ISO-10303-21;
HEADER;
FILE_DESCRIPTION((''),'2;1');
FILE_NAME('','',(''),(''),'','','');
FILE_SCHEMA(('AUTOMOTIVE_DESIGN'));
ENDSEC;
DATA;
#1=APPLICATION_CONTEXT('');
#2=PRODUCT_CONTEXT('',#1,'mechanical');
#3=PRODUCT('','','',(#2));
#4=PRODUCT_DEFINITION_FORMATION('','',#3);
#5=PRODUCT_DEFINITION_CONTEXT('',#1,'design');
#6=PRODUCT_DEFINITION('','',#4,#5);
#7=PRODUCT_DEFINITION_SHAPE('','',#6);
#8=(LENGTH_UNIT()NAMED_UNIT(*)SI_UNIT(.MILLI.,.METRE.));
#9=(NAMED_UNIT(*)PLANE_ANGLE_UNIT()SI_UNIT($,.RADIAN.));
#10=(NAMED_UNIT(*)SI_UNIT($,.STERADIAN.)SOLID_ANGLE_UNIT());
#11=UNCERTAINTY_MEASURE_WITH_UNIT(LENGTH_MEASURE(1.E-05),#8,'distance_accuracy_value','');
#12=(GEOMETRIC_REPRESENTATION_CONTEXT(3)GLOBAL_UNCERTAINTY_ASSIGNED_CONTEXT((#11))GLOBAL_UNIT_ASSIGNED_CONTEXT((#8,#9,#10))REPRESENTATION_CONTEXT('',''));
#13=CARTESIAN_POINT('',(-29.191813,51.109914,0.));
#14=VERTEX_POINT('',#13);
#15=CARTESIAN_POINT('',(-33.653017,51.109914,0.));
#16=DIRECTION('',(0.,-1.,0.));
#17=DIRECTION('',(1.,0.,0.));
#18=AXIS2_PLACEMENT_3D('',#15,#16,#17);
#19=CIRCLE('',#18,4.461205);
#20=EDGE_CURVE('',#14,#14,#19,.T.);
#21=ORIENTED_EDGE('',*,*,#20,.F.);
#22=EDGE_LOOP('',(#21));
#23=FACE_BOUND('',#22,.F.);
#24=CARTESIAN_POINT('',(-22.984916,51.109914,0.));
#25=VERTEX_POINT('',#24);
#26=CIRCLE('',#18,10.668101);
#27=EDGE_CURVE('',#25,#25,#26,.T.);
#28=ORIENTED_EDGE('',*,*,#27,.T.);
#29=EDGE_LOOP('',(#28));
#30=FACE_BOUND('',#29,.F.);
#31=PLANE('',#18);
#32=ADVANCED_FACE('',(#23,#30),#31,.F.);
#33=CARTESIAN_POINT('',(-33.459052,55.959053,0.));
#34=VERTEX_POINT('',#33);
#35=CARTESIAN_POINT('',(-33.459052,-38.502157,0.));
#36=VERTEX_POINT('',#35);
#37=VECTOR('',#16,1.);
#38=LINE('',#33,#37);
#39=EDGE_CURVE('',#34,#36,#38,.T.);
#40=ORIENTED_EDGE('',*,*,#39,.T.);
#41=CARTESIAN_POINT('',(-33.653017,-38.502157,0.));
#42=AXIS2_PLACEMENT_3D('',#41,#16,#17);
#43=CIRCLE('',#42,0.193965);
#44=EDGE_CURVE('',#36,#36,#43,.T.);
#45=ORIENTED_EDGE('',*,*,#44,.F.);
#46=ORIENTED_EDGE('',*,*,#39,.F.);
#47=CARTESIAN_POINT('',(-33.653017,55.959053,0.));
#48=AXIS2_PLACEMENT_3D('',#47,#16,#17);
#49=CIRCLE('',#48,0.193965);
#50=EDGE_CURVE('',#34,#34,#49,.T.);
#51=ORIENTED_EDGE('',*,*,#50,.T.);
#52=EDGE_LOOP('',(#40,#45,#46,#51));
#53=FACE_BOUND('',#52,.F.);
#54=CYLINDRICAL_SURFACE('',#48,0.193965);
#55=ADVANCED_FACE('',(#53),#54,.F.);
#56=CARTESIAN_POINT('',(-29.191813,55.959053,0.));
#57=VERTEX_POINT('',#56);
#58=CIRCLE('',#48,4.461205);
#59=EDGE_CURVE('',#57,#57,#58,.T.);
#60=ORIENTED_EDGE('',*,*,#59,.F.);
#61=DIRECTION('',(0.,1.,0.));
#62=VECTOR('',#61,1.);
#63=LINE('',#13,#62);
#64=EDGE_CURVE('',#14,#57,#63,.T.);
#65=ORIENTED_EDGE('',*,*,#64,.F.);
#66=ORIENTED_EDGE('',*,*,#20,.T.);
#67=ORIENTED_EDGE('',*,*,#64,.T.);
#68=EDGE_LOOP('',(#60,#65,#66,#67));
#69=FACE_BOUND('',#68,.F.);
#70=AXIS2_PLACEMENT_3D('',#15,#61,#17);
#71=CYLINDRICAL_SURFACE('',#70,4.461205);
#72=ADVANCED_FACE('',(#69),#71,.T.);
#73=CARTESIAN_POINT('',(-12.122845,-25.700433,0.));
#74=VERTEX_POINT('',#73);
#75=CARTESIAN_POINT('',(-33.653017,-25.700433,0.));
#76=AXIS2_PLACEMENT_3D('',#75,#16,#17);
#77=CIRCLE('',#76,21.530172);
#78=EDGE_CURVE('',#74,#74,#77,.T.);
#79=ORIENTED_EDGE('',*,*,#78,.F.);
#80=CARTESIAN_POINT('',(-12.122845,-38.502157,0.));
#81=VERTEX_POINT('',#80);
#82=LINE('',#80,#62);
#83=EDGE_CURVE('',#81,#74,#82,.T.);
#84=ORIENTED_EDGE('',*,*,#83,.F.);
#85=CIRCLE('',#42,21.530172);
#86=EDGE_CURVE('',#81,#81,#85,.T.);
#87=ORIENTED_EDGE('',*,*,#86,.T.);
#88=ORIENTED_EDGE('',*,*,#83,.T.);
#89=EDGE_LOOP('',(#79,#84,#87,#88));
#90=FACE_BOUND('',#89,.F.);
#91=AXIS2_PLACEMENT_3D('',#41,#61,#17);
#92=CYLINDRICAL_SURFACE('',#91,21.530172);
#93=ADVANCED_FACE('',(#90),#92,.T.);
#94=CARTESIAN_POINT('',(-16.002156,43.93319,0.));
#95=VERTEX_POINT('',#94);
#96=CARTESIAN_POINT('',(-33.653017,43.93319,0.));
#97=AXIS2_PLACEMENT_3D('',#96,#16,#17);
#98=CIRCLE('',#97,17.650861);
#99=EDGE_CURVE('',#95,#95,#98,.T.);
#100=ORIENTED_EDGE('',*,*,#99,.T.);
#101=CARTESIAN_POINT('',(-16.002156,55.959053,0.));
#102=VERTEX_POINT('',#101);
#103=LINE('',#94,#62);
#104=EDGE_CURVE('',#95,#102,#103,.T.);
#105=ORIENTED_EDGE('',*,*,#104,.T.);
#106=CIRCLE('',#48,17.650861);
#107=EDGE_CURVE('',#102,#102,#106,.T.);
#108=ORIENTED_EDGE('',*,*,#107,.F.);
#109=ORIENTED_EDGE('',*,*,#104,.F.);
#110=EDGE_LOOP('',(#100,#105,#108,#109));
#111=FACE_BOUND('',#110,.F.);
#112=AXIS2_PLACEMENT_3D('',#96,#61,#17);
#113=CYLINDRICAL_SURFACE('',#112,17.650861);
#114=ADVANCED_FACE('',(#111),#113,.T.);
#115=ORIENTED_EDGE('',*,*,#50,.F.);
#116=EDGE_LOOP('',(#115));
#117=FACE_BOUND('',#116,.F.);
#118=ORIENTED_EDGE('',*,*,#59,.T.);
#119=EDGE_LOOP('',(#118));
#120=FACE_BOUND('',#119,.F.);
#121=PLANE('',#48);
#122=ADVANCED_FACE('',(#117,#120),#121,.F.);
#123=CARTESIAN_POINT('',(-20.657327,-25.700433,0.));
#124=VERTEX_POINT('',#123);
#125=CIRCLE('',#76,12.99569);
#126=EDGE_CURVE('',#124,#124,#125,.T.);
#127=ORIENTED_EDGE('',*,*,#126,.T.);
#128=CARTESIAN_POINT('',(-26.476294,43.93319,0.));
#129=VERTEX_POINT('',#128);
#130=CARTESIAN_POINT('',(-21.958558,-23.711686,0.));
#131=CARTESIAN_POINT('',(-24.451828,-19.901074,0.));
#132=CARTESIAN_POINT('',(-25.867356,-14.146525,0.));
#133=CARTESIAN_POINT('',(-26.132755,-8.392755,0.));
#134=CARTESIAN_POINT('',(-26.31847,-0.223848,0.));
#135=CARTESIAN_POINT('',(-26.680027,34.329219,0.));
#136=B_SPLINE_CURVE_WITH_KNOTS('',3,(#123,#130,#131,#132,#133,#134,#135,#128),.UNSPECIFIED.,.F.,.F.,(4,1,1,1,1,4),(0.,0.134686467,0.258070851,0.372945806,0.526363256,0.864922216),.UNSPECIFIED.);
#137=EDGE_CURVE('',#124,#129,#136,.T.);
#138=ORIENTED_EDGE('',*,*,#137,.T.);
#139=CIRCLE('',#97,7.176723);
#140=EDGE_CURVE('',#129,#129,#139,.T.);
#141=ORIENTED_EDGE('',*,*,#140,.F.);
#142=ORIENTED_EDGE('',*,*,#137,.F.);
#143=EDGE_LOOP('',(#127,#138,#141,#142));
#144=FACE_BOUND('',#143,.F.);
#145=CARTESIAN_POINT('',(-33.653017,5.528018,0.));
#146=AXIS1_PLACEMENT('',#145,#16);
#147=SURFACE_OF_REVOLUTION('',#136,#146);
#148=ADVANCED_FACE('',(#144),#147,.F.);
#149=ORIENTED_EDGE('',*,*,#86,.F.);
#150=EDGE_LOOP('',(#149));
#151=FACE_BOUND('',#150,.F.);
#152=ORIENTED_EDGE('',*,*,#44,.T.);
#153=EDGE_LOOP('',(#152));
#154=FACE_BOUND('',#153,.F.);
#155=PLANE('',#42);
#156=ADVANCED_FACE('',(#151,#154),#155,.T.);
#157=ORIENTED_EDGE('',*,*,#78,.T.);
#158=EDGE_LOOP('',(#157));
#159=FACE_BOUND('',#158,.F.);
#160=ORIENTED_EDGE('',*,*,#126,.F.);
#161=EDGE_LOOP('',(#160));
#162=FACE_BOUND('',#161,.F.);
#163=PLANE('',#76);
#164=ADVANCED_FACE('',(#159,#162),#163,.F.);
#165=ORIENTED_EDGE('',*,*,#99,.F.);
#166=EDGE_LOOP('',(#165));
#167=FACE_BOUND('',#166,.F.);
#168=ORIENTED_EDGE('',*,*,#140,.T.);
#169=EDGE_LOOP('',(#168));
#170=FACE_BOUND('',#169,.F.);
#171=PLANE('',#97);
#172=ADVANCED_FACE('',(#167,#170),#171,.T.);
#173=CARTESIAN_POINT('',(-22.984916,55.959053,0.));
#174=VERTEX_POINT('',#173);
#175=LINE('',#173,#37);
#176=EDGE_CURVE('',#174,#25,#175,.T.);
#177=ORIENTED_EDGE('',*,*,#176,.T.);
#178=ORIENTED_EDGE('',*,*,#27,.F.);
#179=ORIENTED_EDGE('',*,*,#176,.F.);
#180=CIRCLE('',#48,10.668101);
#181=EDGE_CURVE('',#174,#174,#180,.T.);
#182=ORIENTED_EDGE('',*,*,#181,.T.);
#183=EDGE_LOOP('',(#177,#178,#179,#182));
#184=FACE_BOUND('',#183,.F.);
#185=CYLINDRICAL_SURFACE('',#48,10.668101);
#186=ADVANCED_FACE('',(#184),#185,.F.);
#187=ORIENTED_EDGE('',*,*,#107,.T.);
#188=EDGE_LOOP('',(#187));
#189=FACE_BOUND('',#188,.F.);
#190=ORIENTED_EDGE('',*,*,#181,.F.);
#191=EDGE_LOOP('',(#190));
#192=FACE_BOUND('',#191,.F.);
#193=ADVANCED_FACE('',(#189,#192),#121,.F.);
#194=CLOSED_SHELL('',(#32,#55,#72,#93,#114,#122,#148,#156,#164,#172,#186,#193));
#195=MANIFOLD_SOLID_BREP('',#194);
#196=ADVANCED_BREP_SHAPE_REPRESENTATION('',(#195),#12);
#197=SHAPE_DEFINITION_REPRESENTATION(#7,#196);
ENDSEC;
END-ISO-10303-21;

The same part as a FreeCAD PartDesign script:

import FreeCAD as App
import Part
import Sketcher

doc = App.newDocument("Part")
body = doc.addObject("PartDesign::Body", "Body")

sketch1 = body.newObject("Sketcher::SketchObject", "Sketch")
sketch1.AttachmentSupport = (doc.getObject("XY_Plane"), [""])
sketch1.MapMode = "FlatFace"
sketch1.addGeometry([
    Part.LineSegment(App.Vector(-12.122845, -25.700433, 0), App.Vector(-20.657327, -25.700433, 0)),
    Part.BSplineCurve([App.Vector(-20.657327, -25.700433, 0), App.Vector(-21.958558, -23.711686, 0), App.Vector(-24.451828, -19.901074, 0), App.Vector(-25.867356, -14.146525, 0), App.Vector(-26.132755, -8.392755, 0), App.Vector(-26.31847, -0.223848, 0), App.Vector(-26.680027, 34.329219, 0), App.Vector(-26.476294, 43.93319, 0)], [4, 1, 1, 1, 1, 4], [0, 0.134686467, 0.258070851, 0.372945806, 0.526363256, 0.864922216], False, 3, [1, 1, 1, 1, 1, 1, 1, 1], False),
    Part.LineSegment(App.Vector(-26.476294, 43.93319, 0), App.Vector(-16.002156, 43.93319, 0)),
    Part.LineSegment(App.Vector(-16.002156, 43.93319, 0), App.Vector(-16.002156, 55.959053, 0)),
    Part.LineSegment(App.Vector(-16.002156, 55.959053, 0), App.Vector(-22.984916, 55.959053, 0)),
    Part.LineSegment(App.Vector(-22.984916, 55.959053, 0), App.Vector(-22.984916, 51.109914, 0)),
    Part.LineSegment(App.Vector(-22.984916, 51.109914, 0), App.Vector(-29.191813, 51.109914, 0)),
    Part.LineSegment(App.Vector(-29.191813, 51.109914, 0), App.Vector(-29.191813, 55.959053, 0)),
    Part.LineSegment(App.Vector(-29.191813, 55.959053, 0), App.Vector(-33.459052, 55.959053, 0)),
    Part.LineSegment(App.Vector(-33.459052, 55.959053, 0), App.Vector(-33.459052, -38.502157, 0)),
    Part.LineSegment(App.Vector(-33.459052, -38.502157, 0), App.Vector(-12.122845, -38.502157, 0)),
    Part.LineSegment(App.Vector(-12.122845, -38.502157, 0), App.Vector(-12.122845, -25.700433, 0)),
], False)
sketch1.addGeometry(Part.LineSegment(App.Vector(-33.653017, 55.959053, 0), App.Vector(-33.653017, -38.502157, 0)), True)
sketch1.addConstraint([
    Sketcher.Constraint("Block", 1),
    Sketcher.Constraint("Coincident", 0, 2, 1, 1),
    Sketcher.Constraint("Coincident", 1, 2, 2, 1),
    Sketcher.Constraint("Coincident", 2, 2, 3, 1),
    Sketcher.Constraint("Coincident", 3, 2, 4, 1),
    Sketcher.Constraint("Coincident", 4, 2, 5, 1),
    Sketcher.Constraint("Coincident", 5, 2, 6, 1),
    Sketcher.Constraint("Coincident", 6, 2, 7, 1),
    Sketcher.Constraint("Coincident", 7, 2, 8, 1),
    Sketcher.Constraint("Coincident", 8, 2, 9, 1),
    Sketcher.Constraint("Coincident", 9, 2, 10, 1),
    Sketcher.Constraint("Coincident", 10, 2, 11, 1),
    Sketcher.Constraint("Coincident", 11, 2, 0, 1),
    Sketcher.Constraint("Horizontal", 0),
    Sketcher.Constraint("Horizontal", 2),
    Sketcher.Constraint("Vertical", 3),
    Sketcher.Constraint("Horizontal", 4),
    Sketcher.Constraint("Vertical", 5),
    Sketcher.Constraint("Horizontal", 6),
    Sketcher.Constraint("Vertical", 7),
    Sketcher.Constraint("Horizontal", 8),
    Sketcher.Constraint("Vertical", 9),
    Sketcher.Constraint("Horizontal", 10),
    Sketcher.Constraint("Vertical", 11),
    Sketcher.Constraint("Vertical", 12),
    Sketcher.Constraint("Horizontal", 4, 2, 7, 2),
    Sketcher.Constraint("Horizontal", 8, 2, 12, 1),
    Sketcher.Constraint("Horizontal", 10, 2, 12, 2),
    Sketcher.Constraint("DistanceX", 0, 2, 0, 1, 8.534482),
    Sketcher.Constraint("DistanceX", 4, 2, 4, 1, 6.982761),
    Sketcher.Constraint("DistanceX", 8, 2, 8, 1, 4.26724),
    Sketcher.Constraint("DistanceY", 5, 2, 5, 1, 4.84914),
    Sketcher.Constraint("DistanceY", 9, 2, 9, 1, 94.46121),
    Sketcher.Constraint("DistanceX", 12, 1, 4, 2, 10.668101),
    Sketcher.Constraint("DistanceX", 2, 1, 2, 2, 10.474138),
    Sketcher.Constraint("DistanceX", 6, 2, 6, 1, 6.206896),
    Sketcher.Constraint("DistanceY", 3, 1, 3, 2, 12.025863),
])
revolution = body.newObject("PartDesign::Revolution", "Revolution")
revolution.Profile = sketch1
revolution.ReferenceAxis = (sketch1, ["Axis0"])
revolution.Angle = 360

doc.recompute()
